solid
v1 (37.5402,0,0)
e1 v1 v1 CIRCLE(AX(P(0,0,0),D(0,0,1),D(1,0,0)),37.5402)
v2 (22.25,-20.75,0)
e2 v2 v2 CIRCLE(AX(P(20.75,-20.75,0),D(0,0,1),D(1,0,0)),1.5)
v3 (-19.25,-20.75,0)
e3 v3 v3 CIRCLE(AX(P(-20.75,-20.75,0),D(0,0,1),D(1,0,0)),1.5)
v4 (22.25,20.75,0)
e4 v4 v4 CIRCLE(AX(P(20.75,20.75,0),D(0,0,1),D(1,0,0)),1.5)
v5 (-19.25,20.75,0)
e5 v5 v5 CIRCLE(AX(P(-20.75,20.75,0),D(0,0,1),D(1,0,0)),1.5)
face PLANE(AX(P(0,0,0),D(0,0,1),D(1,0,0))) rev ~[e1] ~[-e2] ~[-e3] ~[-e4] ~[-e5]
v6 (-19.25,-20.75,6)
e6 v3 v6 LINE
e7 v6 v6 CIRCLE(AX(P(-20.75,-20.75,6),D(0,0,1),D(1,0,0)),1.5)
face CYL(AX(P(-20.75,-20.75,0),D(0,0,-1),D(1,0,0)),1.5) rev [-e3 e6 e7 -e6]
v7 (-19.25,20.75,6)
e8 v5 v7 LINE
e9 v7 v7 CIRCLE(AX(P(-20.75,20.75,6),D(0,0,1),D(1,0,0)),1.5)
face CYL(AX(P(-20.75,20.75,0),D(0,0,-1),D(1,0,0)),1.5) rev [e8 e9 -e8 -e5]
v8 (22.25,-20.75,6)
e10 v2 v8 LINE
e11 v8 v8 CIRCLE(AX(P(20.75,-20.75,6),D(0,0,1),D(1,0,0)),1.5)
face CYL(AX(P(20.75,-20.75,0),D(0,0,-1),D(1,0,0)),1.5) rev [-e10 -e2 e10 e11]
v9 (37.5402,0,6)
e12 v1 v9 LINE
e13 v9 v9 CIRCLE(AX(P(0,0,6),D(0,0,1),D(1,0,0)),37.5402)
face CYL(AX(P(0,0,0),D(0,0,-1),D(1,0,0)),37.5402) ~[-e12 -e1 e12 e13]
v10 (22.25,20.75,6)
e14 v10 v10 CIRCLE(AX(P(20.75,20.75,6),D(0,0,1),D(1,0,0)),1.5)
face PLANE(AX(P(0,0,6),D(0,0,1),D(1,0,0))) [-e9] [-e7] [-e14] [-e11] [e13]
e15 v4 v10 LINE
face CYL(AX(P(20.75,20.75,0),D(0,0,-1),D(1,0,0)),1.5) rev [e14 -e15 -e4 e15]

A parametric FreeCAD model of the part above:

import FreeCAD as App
import Part
import Sketcher
from FreeCAD import Vector

doc = App.newDocument("Part")
params = doc.addObject("Spreadsheet::Sheet", "Params")
for row, (alias, value) in enumerate([
    ("sketch1_diameter", "3 mm"),
    ("pad1_length", "6 mm"),
], start=1):
    params.set(f"A{row}", alias)
    params.set(f"B{row}", "=" + value)
    params.setAlias(f"B{row}", alias)

body = doc.addObject("PartDesign::Body", "Body")

sketch1 = body.newObject("Sketcher::SketchObject", "Sketch")
sketch1.AttachmentSupport = (doc.getObject("XY_Plane"), [""])
sketch1.MapMode = "FlatFace"
sketch1.addGeometry([
    Part.Circle(Vector(0, 0, 0), Vector(0, 0, 1), 37.5),
    Part.Circle(Vector(-20.8, -20.8, 0), Vector(0, 0, 1), 1.5),
    Part.Circle(Vector(20.8, -20.8, 0), Vector(0, 0, 1), 1.5),
    Part.Circle(Vector(-20.8, 20.8, 0), Vector(0, 0, 1), 1.5),
    Part.Circle(Vector(20.8, 20.8, 0), Vector(0, 0, 1), 1.5),
], False)
sketch1.addConstraint([
    Sketcher.Constraint("Coincident", 0, 3, -1, 1),
    Sketcher.Constraint("Equal", 1, 2),
    Sketcher.Constraint("Equal", 2, 3),
    Sketcher.Constraint("Equal", 3, 4),
    Sketcher.Constraint("Symmetric", 2, 3, 3, 3, -1, 1),
    Sketcher.Constraint("Symmetric", 1, 3, 4, 3, -1, 1),
    Sketcher.Constraint("Symmetric", 1, 3, 2, 3, -2),
    Sketcher.Constraint("Diameter", 1, 3.0),
    Sketcher.Constraint("Diameter", 0, 75.0804),
    Sketcher.Constraint("DistanceX", 1, 3, 2, 3, 41.5),
    Sketcher.Constraint("DistanceY", 1, 3, 3, 3, 41.5),
])
sketch1.setExpression("Constraints[7]", "Params.sketch1_diameter")
pad1 = body.newObject("PartDesign::Pad", "Pad")
pad1.Profile = sketch1
pad1.setExpression("Length", "Params.pad1_length")

doc.recompute()
